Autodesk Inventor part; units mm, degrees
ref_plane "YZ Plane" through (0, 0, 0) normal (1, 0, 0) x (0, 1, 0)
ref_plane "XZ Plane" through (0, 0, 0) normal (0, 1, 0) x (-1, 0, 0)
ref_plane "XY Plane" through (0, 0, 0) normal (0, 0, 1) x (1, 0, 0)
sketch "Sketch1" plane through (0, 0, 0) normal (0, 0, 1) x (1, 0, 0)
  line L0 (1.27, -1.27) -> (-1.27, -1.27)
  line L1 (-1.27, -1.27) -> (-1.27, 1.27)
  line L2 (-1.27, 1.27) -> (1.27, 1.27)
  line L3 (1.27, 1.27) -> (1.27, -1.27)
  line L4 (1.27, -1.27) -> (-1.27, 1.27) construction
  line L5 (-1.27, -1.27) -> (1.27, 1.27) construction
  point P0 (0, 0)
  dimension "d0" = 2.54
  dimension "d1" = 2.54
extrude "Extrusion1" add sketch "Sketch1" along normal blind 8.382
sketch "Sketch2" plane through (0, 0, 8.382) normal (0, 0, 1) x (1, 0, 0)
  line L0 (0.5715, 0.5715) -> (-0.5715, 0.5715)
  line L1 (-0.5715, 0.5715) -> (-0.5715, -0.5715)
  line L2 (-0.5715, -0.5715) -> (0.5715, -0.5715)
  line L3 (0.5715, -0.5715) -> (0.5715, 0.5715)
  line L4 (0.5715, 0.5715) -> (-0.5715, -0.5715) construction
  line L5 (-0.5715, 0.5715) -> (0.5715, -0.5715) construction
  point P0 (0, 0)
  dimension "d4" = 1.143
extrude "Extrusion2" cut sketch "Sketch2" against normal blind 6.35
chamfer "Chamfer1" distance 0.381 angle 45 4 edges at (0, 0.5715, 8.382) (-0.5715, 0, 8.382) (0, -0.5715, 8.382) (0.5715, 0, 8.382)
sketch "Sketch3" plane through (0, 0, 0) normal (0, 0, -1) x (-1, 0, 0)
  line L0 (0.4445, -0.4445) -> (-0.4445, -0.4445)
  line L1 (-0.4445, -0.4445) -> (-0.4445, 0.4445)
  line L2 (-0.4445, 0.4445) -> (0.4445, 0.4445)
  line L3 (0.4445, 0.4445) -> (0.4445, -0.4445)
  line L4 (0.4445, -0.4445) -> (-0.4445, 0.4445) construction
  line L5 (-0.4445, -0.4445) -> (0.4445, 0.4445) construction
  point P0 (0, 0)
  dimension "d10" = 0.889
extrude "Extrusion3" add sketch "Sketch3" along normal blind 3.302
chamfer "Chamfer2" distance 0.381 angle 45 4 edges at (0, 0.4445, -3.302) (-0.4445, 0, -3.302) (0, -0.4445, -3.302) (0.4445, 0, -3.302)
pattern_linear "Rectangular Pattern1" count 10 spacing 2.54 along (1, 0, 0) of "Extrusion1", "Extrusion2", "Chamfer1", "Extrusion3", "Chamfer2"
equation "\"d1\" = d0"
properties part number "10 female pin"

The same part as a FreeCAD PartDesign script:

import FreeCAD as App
import Part
import Sketcher
Q = App.Units.Quantity


def edges_at(feature, points):
    """Names of the edges that pass closest to the given points."""
    edges = feature.Shape.Edges
    near = lambda p: min(range(len(edges)), key=lambda i: edges[i].distToShape(Part.Vertex(*p))[0])
    return sorted({f"Edge{near(p) + 1}" for p in points})


def add_polygon(sketch, points):
    """Adds a closed chain of lines whose ends are joined by coincident constraints."""
    first, n = sketch.GeometryCount, len(points)
    for a, b in zip(points, points[1:] + points[:1]):
        sketch.addGeometry(Part.LineSegment(App.Vector(*a, 0), App.Vector(*b, 0)), False)
    for i in range(n):
        sketch.addConstraint(Sketcher.Constraint("Coincident", first + i, 2, first + (i + 1) % n, 1))

doc = App.newDocument("Part")
params = doc.addObject("Spreadsheet::Sheet", "Params")
for row, (alias, value) in enumerate([
    ("sketch1_width", "0.1 in"),
    ("pad1_length", "0.33 in"),
    ("sketch2_width", "0.045 in"),
    ("pocket1_length", "0.25 in"),
    ("chamfer_size", "0.015 in"),
    ("sketch3_width", "0.035 in"),
    ("pad2_length", "0.13 in"),
    ("chamfer2_size", "0.015 in"),
    ("linearpattern_pitch", "0.1 in"),
], start=1):
    params.set(f"A{row}", alias)
    params.set(f"B{row}", "=" + value)
    params.setAlias(f"B{row}", alias)

body = doc.addObject("PartDesign::Body", "Body")

sketch1 = body.newObject("Sketcher::SketchObject", "Sketch")
sketch1.AttachmentSupport = (doc.getObject("XY_Plane"), [""])
sketch1.MapMode = "FlatFace"
add_polygon(sketch1, [(-1.3, -1.3), (1.3, -1.3), (1.3, 1.3), (-1.3, 1.3)])
sketch1.addConstraint(Sketcher.Constraint("Horizontal", 0))
sketch1.addConstraint(Sketcher.Constraint("Vertical", 1))
sketch1.addConstraint(Sketcher.Constraint("Horizontal", 2))
sketch1.addConstraint(Sketcher.Constraint("Vertical", 3))
sketch1.addConstraint(Sketcher.Constraint("Symmetric", 0, 2, 2, 2, -1, 1))
sketch1.addConstraint(Sketcher.Constraint("Equal", 2, 1))
sketch1.addConstraint(Sketcher.Constraint("DistanceX", 0, 1, 0, 2, Q("0.1 in")))
sketch1.setExpression("Constraints[10]", "Params.sketch1_width")
pad1 = body.newObject("PartDesign::Pad", "Pad")
pad1.Profile = sketch1
pad1.setExpression("Length", "Params.pad1_length")

sketch2 = body.newObject("Sketcher::SketchObject", "Sketch001")
sketch2.AttachmentSupport = (doc.getObject("XY_Plane"), [""])
sketch2.MapMode = "FlatFace"
sketch2.AttachmentOffset = App.Placement(App.Vector(0, 0, 0.33 * 25.4), App.Rotation())
add_polygon(sketch2, [(0.6, -0.6), (0.6, 0.6), (-0.6, 0.6), (-0.6, -0.6)])
sketch2.addConstraint(Sketcher.Constraint("Vertical", 0))
sketch2.addConstraint(Sketcher.Constraint("Horizontal", 1))
sketch2.addConstraint(Sketcher.Constraint("Vertical", 2))
sketch2.addConstraint(Sketcher.Constraint("Horizontal", 3))
sketch2.addConstraint(Sketcher.Constraint("Symmetric", 0, 2, 2, 2, -1, 1))
sketch2.addConstraint(Sketcher.Constraint("Equal", 3, 0))
sketch2.addConstraint(Sketcher.Constraint("DistanceX", 1, 2, 1, 1, Q("0.045 in")))
sketch2.setExpression("Constraints[10]", "Params.sketch2_width")
pocket1 = body.newObject("PartDesign::Pocket", "Pocket")
pocket1.Profile = sketch2
pocket1.setExpression("Length", "Params.pocket1_length")
doc.recompute()

chamfer = body.newObject("PartDesign::Chamfer", "Chamfer")
chamfer.Base = (pocket1, edges_at(pocket1, [
    (0, 0.572, 8.382),
    (-0.572, 0, 8.382),
    (0, -0.572, 8.382),
    (0.572, 0, 8.382),
]))
chamfer.setExpression("Size", "Params.chamfer_size")

sketch3 = body.newObject("Sketcher::SketchObject", "Sketch002")
sketch3.AttachmentSupport = (doc.getObject("XY_Plane"), [""])
sketch3.MapMode = "FlatFace"
add_polygon(sketch3, [(0.4, -0.4), (-0.4, -0.4), (-0.4, 0.4), (0.4, 0.4)])
sketch3.addConstraint(Sketcher.Constraint("Horizontal", 0))
sketch3.addConstraint(Sketcher.Constraint("Vertical", 1))
sketch3.addConstraint(Sketcher.Constraint("Horizontal", 2))
sketch3.addConstraint(Sketcher.Constraint("Vertical", 3))
sketch3.addConstraint(Sketcher.Constraint("Symmetric", 0, 2, 2, 2, -1, 1))
sketch3.addConstraint(Sketcher.Constraint("Equal", 2, 1))
sketch3.addConstraint(Sketcher.Constraint("DistanceX", 0, 2, 0, 1, Q("0.035 in")))
sketch3.setExpression("Constraints[10]", "Params.sketch3_width")
pad2 = body.newObject("PartDesign::Pad", "Pad001")
pad2.Profile = sketch3
pad2.setExpression("Length", "Params.pad2_length")
pad2.Reversed = True
doc.recompute()

chamfer2 = body.newObject("PartDesign::Chamfer", "Chamfer001")
chamfer2.Base = (pad2, edges_at(pad2, [
    (0, 0.445, -3.302),
    (-0.445, 0, -3.302),
    (0, -0.445, -3.302),
    (0.445, 0, -3.302),
]))
chamfer2.setExpression("Size", "Params.chamfer2_size")
doc.recompute()

linearpattern = body.newObject("PartDesign::LinearPattern", "LinearPattern")
linearpattern.Originals = [pad1, pocket1, chamfer, pad2, chamfer2]
linearpattern.Direction = (doc.getObject("X_Axis"), [""])
linearpattern.Mode = "offset"
linearpattern.setExpression("Offset", "Params.linearpattern_pitch")
linearpattern.Occurrences = 10
body.Tip = linearpattern

doc.recompute()
